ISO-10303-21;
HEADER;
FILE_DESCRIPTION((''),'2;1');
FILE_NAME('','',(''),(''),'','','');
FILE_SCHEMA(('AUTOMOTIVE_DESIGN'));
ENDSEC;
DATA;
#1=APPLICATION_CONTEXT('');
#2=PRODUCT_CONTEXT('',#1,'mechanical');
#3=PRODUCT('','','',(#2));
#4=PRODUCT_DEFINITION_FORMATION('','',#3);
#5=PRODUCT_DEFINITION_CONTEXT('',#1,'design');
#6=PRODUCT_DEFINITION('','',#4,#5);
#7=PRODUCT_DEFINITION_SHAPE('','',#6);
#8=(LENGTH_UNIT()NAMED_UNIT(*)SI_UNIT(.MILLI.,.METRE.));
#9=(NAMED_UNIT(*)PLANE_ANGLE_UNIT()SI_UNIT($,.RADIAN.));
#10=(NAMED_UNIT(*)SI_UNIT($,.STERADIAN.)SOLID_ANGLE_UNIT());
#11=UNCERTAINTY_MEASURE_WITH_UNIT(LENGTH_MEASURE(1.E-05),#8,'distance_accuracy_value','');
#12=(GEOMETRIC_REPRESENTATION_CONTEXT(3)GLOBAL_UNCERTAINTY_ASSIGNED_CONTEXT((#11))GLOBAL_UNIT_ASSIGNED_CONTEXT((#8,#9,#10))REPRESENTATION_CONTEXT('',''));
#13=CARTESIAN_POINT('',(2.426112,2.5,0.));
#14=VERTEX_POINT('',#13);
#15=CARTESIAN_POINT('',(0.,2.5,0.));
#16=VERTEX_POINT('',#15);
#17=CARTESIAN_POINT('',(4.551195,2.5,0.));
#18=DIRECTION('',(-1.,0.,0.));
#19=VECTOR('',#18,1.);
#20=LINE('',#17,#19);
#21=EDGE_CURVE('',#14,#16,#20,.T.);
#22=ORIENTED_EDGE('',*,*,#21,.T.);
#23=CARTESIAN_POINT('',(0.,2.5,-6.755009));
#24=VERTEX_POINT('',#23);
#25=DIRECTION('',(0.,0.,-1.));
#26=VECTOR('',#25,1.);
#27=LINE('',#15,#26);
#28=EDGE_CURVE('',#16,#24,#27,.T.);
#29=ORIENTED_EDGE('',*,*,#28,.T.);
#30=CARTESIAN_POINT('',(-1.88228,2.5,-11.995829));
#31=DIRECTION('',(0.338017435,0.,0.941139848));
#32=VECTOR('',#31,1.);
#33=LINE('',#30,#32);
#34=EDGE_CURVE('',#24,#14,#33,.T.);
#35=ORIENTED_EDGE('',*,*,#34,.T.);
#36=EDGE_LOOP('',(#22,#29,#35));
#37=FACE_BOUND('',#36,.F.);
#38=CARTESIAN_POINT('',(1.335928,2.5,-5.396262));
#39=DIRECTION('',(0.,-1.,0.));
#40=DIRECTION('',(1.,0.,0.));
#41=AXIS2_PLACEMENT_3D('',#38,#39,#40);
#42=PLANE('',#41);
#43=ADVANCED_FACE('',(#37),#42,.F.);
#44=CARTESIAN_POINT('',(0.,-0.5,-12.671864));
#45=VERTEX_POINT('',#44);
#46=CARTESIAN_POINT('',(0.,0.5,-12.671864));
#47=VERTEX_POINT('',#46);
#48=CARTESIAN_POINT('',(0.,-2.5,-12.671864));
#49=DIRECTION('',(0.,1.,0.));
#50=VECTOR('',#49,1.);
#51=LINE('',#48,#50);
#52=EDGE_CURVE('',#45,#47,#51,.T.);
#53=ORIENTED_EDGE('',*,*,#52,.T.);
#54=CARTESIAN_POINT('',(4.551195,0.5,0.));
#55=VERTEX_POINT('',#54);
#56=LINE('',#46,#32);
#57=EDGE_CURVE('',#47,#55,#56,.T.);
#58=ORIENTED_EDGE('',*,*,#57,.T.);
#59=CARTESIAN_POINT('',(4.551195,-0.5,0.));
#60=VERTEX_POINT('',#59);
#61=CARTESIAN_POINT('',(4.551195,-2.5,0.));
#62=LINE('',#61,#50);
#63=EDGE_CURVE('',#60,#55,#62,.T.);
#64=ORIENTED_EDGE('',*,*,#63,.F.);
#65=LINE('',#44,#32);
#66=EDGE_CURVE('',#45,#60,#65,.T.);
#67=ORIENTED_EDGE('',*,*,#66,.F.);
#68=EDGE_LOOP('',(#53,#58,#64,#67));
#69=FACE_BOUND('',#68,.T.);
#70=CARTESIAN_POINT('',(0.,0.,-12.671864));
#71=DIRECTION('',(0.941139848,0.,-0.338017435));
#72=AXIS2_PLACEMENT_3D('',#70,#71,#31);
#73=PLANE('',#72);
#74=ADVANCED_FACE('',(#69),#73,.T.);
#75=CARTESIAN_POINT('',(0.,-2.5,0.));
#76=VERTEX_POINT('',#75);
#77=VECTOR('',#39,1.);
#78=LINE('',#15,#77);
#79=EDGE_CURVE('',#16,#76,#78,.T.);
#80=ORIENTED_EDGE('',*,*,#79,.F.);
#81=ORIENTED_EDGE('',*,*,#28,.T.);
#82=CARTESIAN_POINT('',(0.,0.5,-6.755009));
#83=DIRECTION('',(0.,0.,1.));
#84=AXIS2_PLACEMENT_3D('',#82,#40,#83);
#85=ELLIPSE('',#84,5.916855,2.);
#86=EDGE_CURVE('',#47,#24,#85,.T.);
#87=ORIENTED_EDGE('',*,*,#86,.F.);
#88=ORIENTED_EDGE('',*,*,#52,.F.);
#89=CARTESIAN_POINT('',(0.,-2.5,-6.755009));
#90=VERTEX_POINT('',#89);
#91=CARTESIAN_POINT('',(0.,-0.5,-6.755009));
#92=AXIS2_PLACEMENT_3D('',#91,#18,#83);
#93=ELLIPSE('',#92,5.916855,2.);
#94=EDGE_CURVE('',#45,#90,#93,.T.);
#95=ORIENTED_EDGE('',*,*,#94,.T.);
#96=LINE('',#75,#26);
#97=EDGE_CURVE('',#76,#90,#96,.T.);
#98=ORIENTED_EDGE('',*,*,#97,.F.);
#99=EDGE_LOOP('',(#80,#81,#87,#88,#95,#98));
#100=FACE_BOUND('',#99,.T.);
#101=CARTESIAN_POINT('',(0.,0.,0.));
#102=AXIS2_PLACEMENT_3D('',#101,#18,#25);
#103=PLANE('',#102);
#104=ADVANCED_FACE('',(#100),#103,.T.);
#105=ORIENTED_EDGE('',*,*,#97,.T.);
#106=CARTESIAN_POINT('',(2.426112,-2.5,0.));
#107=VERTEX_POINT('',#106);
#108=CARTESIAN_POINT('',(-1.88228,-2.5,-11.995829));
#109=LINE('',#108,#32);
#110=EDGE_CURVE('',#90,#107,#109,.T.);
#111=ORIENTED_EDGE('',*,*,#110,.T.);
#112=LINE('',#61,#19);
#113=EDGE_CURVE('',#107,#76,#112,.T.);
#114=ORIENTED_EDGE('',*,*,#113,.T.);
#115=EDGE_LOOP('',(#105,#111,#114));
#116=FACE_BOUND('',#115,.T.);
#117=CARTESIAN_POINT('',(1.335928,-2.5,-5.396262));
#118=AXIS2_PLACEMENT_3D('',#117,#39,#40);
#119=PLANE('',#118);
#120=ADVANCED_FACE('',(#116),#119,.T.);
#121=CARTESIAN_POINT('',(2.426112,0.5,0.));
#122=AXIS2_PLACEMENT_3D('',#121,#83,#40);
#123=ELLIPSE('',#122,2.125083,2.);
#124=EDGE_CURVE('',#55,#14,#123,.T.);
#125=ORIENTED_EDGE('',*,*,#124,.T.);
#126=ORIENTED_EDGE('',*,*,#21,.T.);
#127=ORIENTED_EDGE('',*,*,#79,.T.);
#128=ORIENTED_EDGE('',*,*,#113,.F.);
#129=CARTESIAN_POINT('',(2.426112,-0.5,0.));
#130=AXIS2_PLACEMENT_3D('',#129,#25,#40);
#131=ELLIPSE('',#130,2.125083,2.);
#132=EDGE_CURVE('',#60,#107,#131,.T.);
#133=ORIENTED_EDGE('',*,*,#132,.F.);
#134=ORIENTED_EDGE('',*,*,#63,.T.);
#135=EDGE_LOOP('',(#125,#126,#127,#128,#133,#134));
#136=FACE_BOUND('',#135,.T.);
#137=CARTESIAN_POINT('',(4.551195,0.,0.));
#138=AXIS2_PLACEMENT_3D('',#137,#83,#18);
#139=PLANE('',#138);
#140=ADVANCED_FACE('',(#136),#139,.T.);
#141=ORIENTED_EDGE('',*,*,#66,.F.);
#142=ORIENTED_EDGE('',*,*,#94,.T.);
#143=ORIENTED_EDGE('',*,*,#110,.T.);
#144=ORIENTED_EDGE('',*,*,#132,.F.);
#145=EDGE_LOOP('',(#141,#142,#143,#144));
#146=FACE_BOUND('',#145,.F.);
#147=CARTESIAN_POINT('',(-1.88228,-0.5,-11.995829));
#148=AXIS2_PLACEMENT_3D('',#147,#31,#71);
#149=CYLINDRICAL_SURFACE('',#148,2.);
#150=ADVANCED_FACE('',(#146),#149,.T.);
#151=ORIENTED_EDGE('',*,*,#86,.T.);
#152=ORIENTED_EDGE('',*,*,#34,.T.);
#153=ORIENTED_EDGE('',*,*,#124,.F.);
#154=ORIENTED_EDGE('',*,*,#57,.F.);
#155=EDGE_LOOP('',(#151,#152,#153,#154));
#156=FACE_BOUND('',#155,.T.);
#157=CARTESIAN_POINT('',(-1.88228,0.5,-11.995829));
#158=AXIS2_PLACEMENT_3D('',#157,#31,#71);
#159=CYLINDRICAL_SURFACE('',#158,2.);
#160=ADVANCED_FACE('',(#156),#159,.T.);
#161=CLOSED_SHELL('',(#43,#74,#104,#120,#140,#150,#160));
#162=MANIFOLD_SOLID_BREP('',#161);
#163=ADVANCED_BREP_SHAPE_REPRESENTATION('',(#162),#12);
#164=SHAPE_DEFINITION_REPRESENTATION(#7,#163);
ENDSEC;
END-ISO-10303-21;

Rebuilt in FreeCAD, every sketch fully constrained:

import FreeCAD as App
import Part
import Sketcher

V = App.Vector


def edges_at(feature, points):
    """Names of the edges that pass closest to the given points."""
    edges = feature.Shape.Edges
    near = lambda p: min(range(len(edges)), key=lambda i: edges[i].distToShape(Part.Vertex(*p))[0])
    return sorted({f"Edge{near(p) + 1}" for p in points})

doc = App.newDocument("Part")
body = doc.addObject("PartDesign::Body", "Body")

sketch1 = body.newObject("Sketcher::SketchObject", "Sketch")
sketch1.AttachmentSupport = (doc.getObject("XZ_Plane"), [""])
sketch1.MapMode = "FlatFace"
sketch1.addGeometry([
    Part.LineSegment(V(4.6, 0, 0), V(0, 0, 0)),
    Part.LineSegment(V(0, 0, 0), V(0, -12.7, 0)),
    Part.LineSegment(V(0, -12.7, 0), V(4.6, 0, 0)),
], False)
sketch1.addConstraint([
    Sketcher.Constraint("Coincident", 0, 2, 1, 1),
    Sketcher.Constraint("Coincident", 1, 2, 2, 1),
    Sketcher.Constraint("Coincident", 2, 2, 0, 1),
    Sketcher.Constraint("Horizontal", 0),
    Sketcher.Constraint("Vertical", 1),
    Sketcher.Constraint("Coincident", 0, 2, -1, 1),
    Sketcher.Constraint("Distance", 2, 13.464379),
    Sketcher.Constraint("DistanceX", 0, 2, 0, 1, 4.551195),
])
pad1 = body.newObject("PartDesign::Pad", "Pad")
pad1.Profile = sketch1
pad1.Length = 5
pad1.Midplane = True
doc.recompute()

fillet = body.newObject("PartDesign::Fillet", "Fillet")
fillet.Base = (pad1, edges_at(pad1, [(2.276, 2.5, -6.336), (2.276, -2.5, -6.336)]))
fillet.Radius = 2

doc.recompute()
